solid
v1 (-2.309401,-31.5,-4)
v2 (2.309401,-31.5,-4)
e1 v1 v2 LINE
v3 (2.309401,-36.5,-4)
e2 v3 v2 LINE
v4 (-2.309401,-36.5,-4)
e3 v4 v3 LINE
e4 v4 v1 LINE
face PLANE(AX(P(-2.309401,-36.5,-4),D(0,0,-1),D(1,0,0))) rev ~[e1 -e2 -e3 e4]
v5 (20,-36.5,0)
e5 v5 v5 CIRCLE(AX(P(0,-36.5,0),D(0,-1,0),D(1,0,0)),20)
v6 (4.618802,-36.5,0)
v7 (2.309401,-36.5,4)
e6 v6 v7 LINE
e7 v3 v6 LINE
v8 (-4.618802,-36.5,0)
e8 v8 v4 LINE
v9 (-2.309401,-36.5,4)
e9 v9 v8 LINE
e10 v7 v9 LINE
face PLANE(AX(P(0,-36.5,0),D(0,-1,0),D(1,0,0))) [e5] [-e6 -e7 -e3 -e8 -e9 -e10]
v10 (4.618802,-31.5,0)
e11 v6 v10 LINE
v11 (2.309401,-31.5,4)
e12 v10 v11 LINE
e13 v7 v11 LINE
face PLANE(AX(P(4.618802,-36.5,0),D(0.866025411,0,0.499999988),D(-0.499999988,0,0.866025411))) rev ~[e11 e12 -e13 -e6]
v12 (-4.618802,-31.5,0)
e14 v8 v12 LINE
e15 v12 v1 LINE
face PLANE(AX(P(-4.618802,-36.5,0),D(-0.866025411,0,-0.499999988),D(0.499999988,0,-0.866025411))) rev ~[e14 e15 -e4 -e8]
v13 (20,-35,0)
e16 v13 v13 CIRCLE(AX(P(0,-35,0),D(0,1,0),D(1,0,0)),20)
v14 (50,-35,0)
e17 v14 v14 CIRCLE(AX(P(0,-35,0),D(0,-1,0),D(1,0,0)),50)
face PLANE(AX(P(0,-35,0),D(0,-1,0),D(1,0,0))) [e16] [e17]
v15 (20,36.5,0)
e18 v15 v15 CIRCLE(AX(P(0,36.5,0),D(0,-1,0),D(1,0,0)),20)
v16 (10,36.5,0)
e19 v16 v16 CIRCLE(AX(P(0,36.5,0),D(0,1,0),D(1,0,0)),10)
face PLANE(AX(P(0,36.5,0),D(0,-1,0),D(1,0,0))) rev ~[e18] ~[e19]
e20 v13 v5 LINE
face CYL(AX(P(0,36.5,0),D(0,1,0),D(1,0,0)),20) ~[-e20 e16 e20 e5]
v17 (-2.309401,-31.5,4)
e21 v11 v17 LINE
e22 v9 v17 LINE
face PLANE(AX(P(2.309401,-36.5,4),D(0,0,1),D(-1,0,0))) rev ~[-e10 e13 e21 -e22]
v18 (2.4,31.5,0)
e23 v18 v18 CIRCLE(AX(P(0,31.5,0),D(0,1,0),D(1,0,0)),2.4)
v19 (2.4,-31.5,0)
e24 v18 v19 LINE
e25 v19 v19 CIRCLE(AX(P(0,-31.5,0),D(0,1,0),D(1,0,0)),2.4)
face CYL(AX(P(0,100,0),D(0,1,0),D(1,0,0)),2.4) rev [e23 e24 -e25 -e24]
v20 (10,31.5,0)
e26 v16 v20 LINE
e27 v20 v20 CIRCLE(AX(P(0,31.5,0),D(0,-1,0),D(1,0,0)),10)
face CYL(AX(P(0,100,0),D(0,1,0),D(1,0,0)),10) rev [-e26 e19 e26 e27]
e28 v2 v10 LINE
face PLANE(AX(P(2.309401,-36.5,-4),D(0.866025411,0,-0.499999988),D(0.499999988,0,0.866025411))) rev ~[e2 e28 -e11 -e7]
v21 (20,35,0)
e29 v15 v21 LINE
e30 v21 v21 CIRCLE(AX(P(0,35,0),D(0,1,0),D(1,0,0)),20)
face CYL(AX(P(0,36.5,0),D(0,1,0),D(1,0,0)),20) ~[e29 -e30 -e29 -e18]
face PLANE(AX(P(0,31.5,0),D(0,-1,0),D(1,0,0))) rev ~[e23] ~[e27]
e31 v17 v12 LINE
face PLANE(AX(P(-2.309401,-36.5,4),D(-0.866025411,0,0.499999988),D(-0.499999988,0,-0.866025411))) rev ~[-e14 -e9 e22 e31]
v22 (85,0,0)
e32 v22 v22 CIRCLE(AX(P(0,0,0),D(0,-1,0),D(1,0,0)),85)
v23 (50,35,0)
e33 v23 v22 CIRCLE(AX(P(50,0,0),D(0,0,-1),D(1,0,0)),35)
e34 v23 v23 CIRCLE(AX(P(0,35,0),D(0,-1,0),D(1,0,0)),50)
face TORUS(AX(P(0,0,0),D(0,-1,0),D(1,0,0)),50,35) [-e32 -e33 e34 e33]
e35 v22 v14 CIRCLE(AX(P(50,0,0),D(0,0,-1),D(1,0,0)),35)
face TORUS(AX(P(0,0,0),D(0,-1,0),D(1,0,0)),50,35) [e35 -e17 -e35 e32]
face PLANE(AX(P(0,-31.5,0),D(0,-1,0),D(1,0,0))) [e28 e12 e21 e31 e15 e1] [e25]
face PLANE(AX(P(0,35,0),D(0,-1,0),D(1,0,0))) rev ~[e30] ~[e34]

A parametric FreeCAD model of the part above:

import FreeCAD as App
import Part
import Sketcher

V = App.Vector
Q = App.Units.Quantity

doc = App.newDocument("Part")
params = doc.addObject("Spreadsheet::Sheet", "Params")
for row, (alias, value) in enumerate([
    ("pad1_length", "5 mm"),
    ("sketch2_diameter", "20 mm"),
    ("pad2_length", "68.5 mm"),
    ("sketch3_diameter", "4.8 mm"),
    ("pad3_length", "200 mm"),
    ("sketch4_diameter", "40 mm"),
    ("pad4_length", "73 mm"),
    ("sketch5_diameter", "100 mm"),
    ("pad5_length", "70 mm"),
    ("sketch6_diameter", "70 mm"),
    ("revolution_angle", "360 deg"),
], start=1):
    params.set(f"A{row}", alias)
    params.set(f"B{row}", "=" + value)
    params.setAlias(f"B{row}", alias)

body = doc.addObject("PartDesign::Body", "Body")

# Sketch on XZ plane
sketch1 = doc.addObject("Sketcher::SketchObject", "Sketch")
body.addObject(sketch1)
sketch1.AttachmentSupport = (doc.XZ_Plane, [""])
sketch1.MapMode = "FlatFace"
sketch1.AttachmentOffset = App.Placement(V(0, 0, 36.5), App.Rotation())
sketch1.addGeometry([
    Part.LineSegment(V(4.6, 0, 0), V(2.3, 4, 0)),  # 0
    Part.LineSegment(V(2.3, 4, 0), V(-2.3, 4, 0)),  # 1
    Part.LineSegment(V(-2.3, 4, 0), V(-4.6, 0, 0)),  # 2
    Part.LineSegment(V(-4.6, 0, 0), V(-2.3, -4, 0)),  # 3
    Part.LineSegment(V(-2.3, -4, 0), V(2.3, -4, 0)),  # 4
    Part.LineSegment(V(2.3, -4, 0), V(4.6, 0, 0)),  # 5
], False)
sketch1.addConstraint([
    Sketcher.Constraint("Coincident", 0, 2, 1, 1),
    Sketcher.Constraint("Coincident", 1, 2, 2, 1),
    Sketcher.Constraint("Coincident", 2, 2, 3, 1),
    Sketcher.Constraint("Coincident", 3, 2, 4, 1),
    Sketcher.Constraint("Coincident", 4, 2, 5, 1),
    Sketcher.Constraint("Coincident", 5, 2, 0, 1),
    Sketcher.Constraint("Horizontal", 1),
    Sketcher.Constraint("Horizontal", 4),
    Sketcher.Constraint("Symmetric", 0, 2, 3, 2, -1, 1),
    Sketcher.Constraint("Symmetric", 2, 2, 5, 2, -1, 1),
    Sketcher.Constraint("PointOnObject", 2, 2, -1),
    Sketcher.Constraint("Parallel", 2, 5),
    Sketcher.Constraint("Vertical", 1, 2, 3, 2),
    Sketcher.Constraint("Angle", 0, Q("119.999999 deg")),
    Sketcher.Constraint("DistanceY", -1, 1, 0, 2, 4.0),
    Sketcher.Constraint("DistanceX", 1, 2, 1, 1, 4.618802),
])
pad1 = doc.addObject("PartDesign::Pad", "Pad")
body.addObject(pad1)
pad1.Profile = sketch1
pad1.setExpression("Length", "Params.pad1_length")
pad1.Reversed = True
body2 = doc.addObject("PartDesign::Body", "Body001")

# Sketch on XY plane
sketch2 = doc.addObject("Sketcher::SketchObject", "Sketch001")
body2.addObject(sketch2)
sketch2.AttachmentSupport = (doc.getObject("XY_Plane001"), [""])
sketch2.MapMode = "FlatFace"
sketch2.addGeometry(Part.Circle(V(0, 0, 0), V(0, 0, 1), 10), False)
sketch2.addConstraint([
    Sketcher.Constraint("Coincident", 0, 3, -1, 1),
    Sketcher.Constraint("Diameter", 0, 20.0),
])
sketch2.setExpression("Constraints[1]", "Params.sketch2_diameter")
pad2 = doc.addObject("PartDesign::Pad", "Pad001")
body2.addObject(pad2)
pad2.Profile = sketch2
pad2.setExpression("Length", "Params.pad2_length")
body3 = doc.addObject("PartDesign::Body", "Body002")
doc.recompute()

body2.Placement = App.Placement(V(0, 0, 0), App.Rotation(V(1, 0, 0), 90))
boolean = doc.addObject("PartDesign::Boolean", "Boolean")
body3.addObject(boolean)
boolean.Type = "Fuse"
boolean.addObjects([body2])
body4 = doc.addObject("PartDesign::Body", "Body003")
doc.recompute()

body3.Placement = App.Placement(V(0, 100, 0), App.Rotation(V(0, 0, 1), 0))
boolean2 = doc.addObject("PartDesign::Boolean", "Boolean001")
body4.addObject(boolean2)
boolean2.Type = "Fuse"
boolean2.addObjects([body3])
body5 = doc.addObject("PartDesign::Body", "Body004")

# Sketch on XY plane
sketch3 = doc.addObject("Sketcher::SketchObject", "Sketch002")
body5.addObject(sketch3)
sketch3.AttachmentSupport = (doc.getObject("XY_Plane004"), [""])
sketch3.MapMode = "FlatFace"
sketch3.addGeometry(Part.Circle(V(0, 0, 0), V(0, 0, 1), 2.4), False)
sketch3.addConstraint([
    Sketcher.Constraint("Coincident", 0, 3, -1, 1),
    Sketcher.Constraint("Diameter", 0, 4.8),
])
sketch3.setExpression("Constraints[1]", "Params.sketch3_diameter")
pad3 = doc.addObject("PartDesign::Pad", "Pad002")
body5.addObject(pad3)
pad3.Profile = sketch3
pad3.setExpression("Length", "Params.pad3_length")
body6 = doc.addObject("PartDesign::Body", "Body005")
doc.recompute()

body5.Placement = App.Placement(V(0, 0, 0), App.Rotation(V(1, 0, 0), 90))
boolean3 = doc.addObject("PartDesign::Boolean", "Boolean002")
body6.addObject(boolean3)
boolean3.Type = "Fuse"
boolean3.addObjects([body5])
body7 = doc.addObject("PartDesign::Body", "Body006")
doc.recompute()

body6.Placement = App.Placement(V(0, 100, 0), App.Rotation(V(0, 0, 1), 0))
boolean4 = doc.addObject("PartDesign::Boolean", "Boolean003")
body7.addObject(boolean4)
boolean4.Type = "Fuse"
boolean4.addObjects([body6])
body8 = doc.addObject("PartDesign::Body", "Body007")

# Sketch on XY plane
sketch4 = doc.addObject("Sketcher::SketchObject", "Sketch003")
body8.addObject(sketch4)
sketch4.AttachmentSupport = (doc.getObject("XY_Plane007"), [""])
sketch4.MapMode = "FlatFace"
sketch4.addGeometry(Part.Circle(V(0, 0, 0), V(0, 0, 1), 20), False)
sketch4.addConstraint([
    Sketcher.Constraint("Coincident", 0, 3, -1, 1),
    Sketcher.Constraint("Diameter", 0, 40.0),
])
sketch4.setExpression("Constraints[1]", "Params.sketch4_diameter")
pad4 = doc.addObject("PartDesign::Pad", "Pad003")
body8.addObject(pad4)
pad4.Profile = sketch4
pad4.setExpression("Length", "Params.pad4_length")
body9 = doc.addObject("PartDesign::Body", "Body008")
doc.recompute()

body8.Placement = App.Placement(V(0, 0, 0), App.Rotation(V(1, 0, 0), 90))
boolean5 = doc.addObject("PartDesign::Boolean", "Boolean004")
body9.addObject(boolean5)
boolean5.Type = "Fuse"
boolean5.addObjects([body8])
body10 = doc.addObject("PartDesign::Body", "Body009")
doc.recompute()

body9.Placement = App.Placement(V(0, 36.5, 0), App.Rotation(V(0, 0, 1), 0))
boolean6 = doc.addObject("PartDesign::Boolean", "Boolean005")
body10.addObject(boolean6)
boolean6.Type = "Fuse"
boolean6.addObjects([body9])
body11 = doc.addObject("PartDesign::Body", "Body010")

# Sketch on XY plane
sketch5 = doc.addObject("Sketcher::SketchObject", "Sketch004")
body11.addObject(sketch5)
sketch5.AttachmentSupport = (doc.getObject("XY_Plane010"), [""])
sketch5.MapMode = "FlatFace"
sketch5.addGeometry(Part.Circle(V(0, 0, 0), V(0, 0, 1), 50), False)
sketch5.addConstraint([
    Sketcher.Constraint("Coincident", 0, 3, -1, 1),
    Sketcher.Constraint("Diameter", 0, 100.0),
])
sketch5.setExpression("Constraints[1]", "Params.sketch5_diameter")
pad5 = doc.addObject("PartDesign::Pad", "Pad004")
body11.addObject(pad5)
pad5.Profile = sketch5
pad5.setExpression("Length", "Params.pad5_length")
body12 = doc.addObject("PartDesign::Body", "Body011")
doc.recompute()

body11.Placement = App.Placement(V(0, 0, 0), App.Rotation(V(1, 0, 0), 90))
boolean7 = doc.addObject("PartDesign::Boolean", "Boolean006")
body12.addObject(boolean7)
boolean7.Type = "Fuse"
boolean7.addObjects([body11])
body13 = doc.addObject("PartDesign::Body", "Body012")
doc.recompute()

body12.Placement = App.Placement(V(0, 35, 0), App.Rotation(V(0, 0, 1), 0))
boolean8 = doc.addObject("PartDesign::Boolean", "Boolean007")
body13.addObject(boolean8)
boolean8.Type = "Fuse"
boolean8.addObjects([body12])
body14 = doc.addObject("PartDesign::Body", "Body013")

# Sketch on XZ plane
sketch6 = doc.addObject("Sketcher::SketchObject", "Sketch005")
body14.addObject(sketch6)
sketch6.AttachmentSupport = (doc.getObject("XZ_Plane013"), [""])
sketch6.MapMode = "FlatFace"
sketch6.addGeometry(Part.Circle(V(50, 0, 0), V(0, 0, 1), 35), False)
sketch6.addConstraint([
    Sketcher.Constraint("PointOnObject", 0, 3, -1),
    Sketcher.Constraint("Diameter", 0, 70.0),
    Sketcher.Constraint("DistanceX", -1, 1, 0, 3, 50.0),
])
sketch6.setExpression("Constraints[1]", "Params.sketch6_diameter")
revolution = doc.addObject("PartDesign::Revolution", "Revolution")
body14.addObject(revolution)
revolution.Profile = sketch6
revolution.ReferenceAxis = (sketch6, ["V_Axis"])
revolution.setExpression("Angle", "Params.revolution_angle")
body15 = doc.addObject("PartDesign::Body", "Body014")
doc.recompute()

body14.Placement = App.Placement(V(0, 0, 0), App.Rotation(V(1, 0, 0), 90))
boolean9 = doc.addObject("PartDesign::Boolean", "Boolean008")
body15.addObject(boolean9)
boolean9.Type = "Fuse"
boolean9.addObjects([body14])
doc.recompute()

boolean10 = doc.addObject("PartDesign::Boolean", "Boolean009")
body15.addObject(boolean10)
boolean10.Type = "Fuse"
boolean10.addObjects([body13])
doc.recompute()

boolean11 = doc.addObject("PartDesign::Boolean", "Boolean010")
body15.addObject(boolean11)
boolean11.Type = "Fuse"
boolean11.addObjects([body10])
doc.recompute()

boolean12 = doc.addObject("PartDesign::Boolean", "Boolean011")
body15.addObject(boolean12)
boolean12.Type = "Cut"
boolean12.addObjects([body7])
doc.recompute()

boolean13 = doc.addObject("PartDesign::Boolean", "Boolean012")
body15.addObject(boolean13)
boolean13.Type = "Cut"
boolean13.addObjects([body4])
doc.recompute()

boolean14 = doc.addObject("PartDesign::Boolean", "Boolean013")
body15.addObject(boolean14)
boolean14.Type = "Cut"
boolean14.addObjects([body])

doc.recompute()
